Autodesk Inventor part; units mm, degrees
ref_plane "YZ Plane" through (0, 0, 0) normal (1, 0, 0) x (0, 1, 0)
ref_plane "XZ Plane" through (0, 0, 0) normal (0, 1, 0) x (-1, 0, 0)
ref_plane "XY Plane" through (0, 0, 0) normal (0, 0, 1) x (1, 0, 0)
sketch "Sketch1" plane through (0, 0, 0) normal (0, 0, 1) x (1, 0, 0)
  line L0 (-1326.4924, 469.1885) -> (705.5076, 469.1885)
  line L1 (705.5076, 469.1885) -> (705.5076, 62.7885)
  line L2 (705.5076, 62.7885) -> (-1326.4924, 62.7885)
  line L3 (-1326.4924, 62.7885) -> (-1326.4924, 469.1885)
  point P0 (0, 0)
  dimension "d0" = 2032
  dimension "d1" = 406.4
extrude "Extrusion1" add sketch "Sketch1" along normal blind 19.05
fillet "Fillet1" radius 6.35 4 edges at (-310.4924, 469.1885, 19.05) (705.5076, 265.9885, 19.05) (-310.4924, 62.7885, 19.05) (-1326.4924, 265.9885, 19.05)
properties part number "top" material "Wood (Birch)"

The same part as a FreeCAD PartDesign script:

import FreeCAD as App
import Part
import Sketcher
Q = App.Units.Quantity


def edges_at(feature, points):
    """Names of the edges that pass closest to the given points."""
    edges = feature.Shape.Edges
    near = lambda p: min(range(len(edges)), key=lambda i: edges[i].distToShape(Part.Vertex(*p))[0])
    return sorted({f"Edge{near(p) + 1}" for p in points})

doc = App.newDocument("Part")
body = doc.addObject("PartDesign::Body", "Body")

# Sketch on XY plane
sketch1 = body.newObject("Sketcher::SketchObject", "Sketch")
sketch1.AttachmentSupport = (doc.getObject("XY_Plane"), [""])
sketch1.MapMode = "FlatFace"
sketch1.addGeometry(Part.LineSegment(App.Vector(705.5076, 469.1885, 0), App.Vector(-1326.4924, 469.1885, 0)), False)
sketch1.addGeometry(Part.LineSegment(App.Vector(-1326.4924, 469.1885, 0), App.Vector(-1326.4924, 62.7885, 0)), False)
sketch1.addGeometry(Part.LineSegment(App.Vector(-1326.4924, 62.7885, 0), App.Vector(705.5076, 62.7885, 0)), False)
sketch1.addGeometry(Part.LineSegment(App.Vector(705.5076, 62.7885, 0), App.Vector(705.5076, 469.1885, 0)), False)
sketch1.addConstraint(Sketcher.Constraint("Coincident", 0, 2, 1, 1))
sketch1.addConstraint(Sketcher.Constraint("Coincident", 1, 2, 2, 1))
sketch1.addConstraint(Sketcher.Constraint("Coincident", 2, 2, 3, 1))
sketch1.addConstraint(Sketcher.Constraint("Coincident", 3, 2, 0, 1))
sketch1.addConstraint(Sketcher.Constraint("Horizontal", 0))
sketch1.addConstraint(Sketcher.Constraint("Vertical", 1))
sketch1.addConstraint(Sketcher.Constraint("Horizontal", 2))
sketch1.addConstraint(Sketcher.Constraint("Vertical", 3))
sketch1.addConstraint(Sketcher.Constraint("DistanceX", 0, 2, 0, 1, Q("80 in")))
sketch1.addConstraint(Sketcher.Constraint("DistanceY", 1, 2, 1, 1, Q("16 in")))
sketch1.addConstraint(Sketcher.Constraint("DistanceY", -1, 1, 0, 2, Q("18.472 in")))
sketch1.addConstraint(Sketcher.Constraint("DistanceX", 0, 2, -1, 1, Q("52.2241 in")))
pad1 = body.newObject("PartDesign::Pad", "Pad")
pad1.Profile = sketch1
pad1.Length = Q("0.75 in")
doc.recompute()

fillet = body.newObject("PartDesign::Fillet", "Fillet")
fillet.Base = (pad1, edges_at(pad1, [
    (-310.492, 469.188, 19.05),
    (705.508, 265.988, 19.05),
    (-310.492, 62.788, 19.05),
    (-1326.492, 265.988, 19.05),
]))
fillet.Radius = Q("0.25 in")

doc.recompute()
